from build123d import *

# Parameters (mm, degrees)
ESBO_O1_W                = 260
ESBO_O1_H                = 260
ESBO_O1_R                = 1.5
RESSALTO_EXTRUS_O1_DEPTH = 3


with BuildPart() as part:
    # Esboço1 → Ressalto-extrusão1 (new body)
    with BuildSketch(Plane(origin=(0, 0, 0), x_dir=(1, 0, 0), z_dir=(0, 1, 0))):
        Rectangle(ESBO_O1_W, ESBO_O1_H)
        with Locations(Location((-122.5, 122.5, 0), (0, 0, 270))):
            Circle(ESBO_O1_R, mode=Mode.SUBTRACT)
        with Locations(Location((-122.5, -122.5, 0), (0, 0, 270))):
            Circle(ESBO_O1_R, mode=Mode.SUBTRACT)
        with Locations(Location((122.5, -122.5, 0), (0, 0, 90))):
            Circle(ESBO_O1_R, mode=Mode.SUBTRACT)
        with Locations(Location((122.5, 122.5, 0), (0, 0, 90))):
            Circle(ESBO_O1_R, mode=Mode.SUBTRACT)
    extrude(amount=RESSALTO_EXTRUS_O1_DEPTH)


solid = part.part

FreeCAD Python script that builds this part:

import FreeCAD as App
import Part
import Sketcher

doc = App.newDocument("Part")
body = doc.addObject("PartDesign::Body", "Body")

# Sketch on XZ plane
sketch1 = body.newObject("Sketcher::SketchObject", "Sketch")
sketch1.AttachmentSupport = (doc.getObject("XZ_Plane"), [""])
sketch1.MapMode = "FlatFace"
sketch1.addGeometry(Part.LineSegment(App.Vector(-130, -130, 0), App.Vector(-130, 130, 0)), False)
sketch1.addGeometry(Part.LineSegment(App.Vector(-130, 130, 0), App.Vector(130, 130, 0)), False)
sketch1.addGeometry(Part.LineSegment(App.Vector(130, 130, 0), App.Vector(130, -130, 0)), False)
sketch1.addGeometry(Part.LineSegment(App.Vector(130, -130, 0), App.Vector(-130, -130, 0)), False)
sketch1.addGeometry(Part.Circle(App.Vector(-122.5, 122.5, 0), App.Vector(0, 0, 1), 1.5), False)
sketch1.addGeometry(Part.Circle(App.Vector(122.5, 122.5, 0), App.Vector(0, 0, 1), 1.5), False)
sketch1.addGeometry(Part.Circle(App.Vector(-122.5, -122.5, 0), App.Vector(0, 0, 1), 1.5), False)
sketch1.addGeometry(Part.Circle(App.Vector(122.5, -122.5, 0), App.Vector(0, 0, 1), 1.5), False)
sketch1.addConstraint(Sketcher.Constraint("Coincident", 0, 2, 1, 1))
sketch1.addConstraint(Sketcher.Constraint("Coincident", 1, 2, 2, 1))
sketch1.addConstraint(Sketcher.Constraint("Coincident", 2, 2, 3, 1))
sketch1.addConstraint(Sketcher.Constraint("Coincident", 3, 2, 0, 1))
sketch1.addConstraint(Sketcher.Constraint("Vertical", 0))
sketch1.addConstraint(Sketcher.Constraint("Horizontal", 1))
sketch1.addConstraint(Sketcher.Constraint("Vertical", 2))
sketch1.addConstraint(Sketcher.Constraint("Horizontal", 3))
sketch1.addConstraint(Sketcher.Constraint("Equal", 4, 5))
sketch1.addConstraint(Sketcher.Constraint("Equal", 5, 6))
sketch1.addConstraint(Sketcher.Constraint("Equal", 6, 7))
sketch1.addConstraint(Sketcher.Constraint("Symmetric", 5, 3, 6, 3, -1, 1))
sketch1.addConstraint(Sketcher.Constraint("Symmetric", 4, 3, 7, 3, -1, 1))
sketch1.addConstraint(Sketcher.Constraint("Symmetric", 0, 2, 2, 2, -1, 1))
sketch1.addConstraint(Sketcher.Constraint("Symmetric", 4, 3, 5, 3, -2))
sketch1.addConstraint(Sketcher.Constraint("Equal", 3, 0))
sketch1.addConstraint(Sketcher.Constraint("Diameter", 4, 3.0))
sketch1.addConstraint(Sketcher.Constraint("DistanceX", 1, 1, 1, 2, 260.0))
sketch1.addConstraint(Sketcher.Constraint("DistanceX", 4, 3, 5, 3, 245.0))
sketch1.addConstraint(Sketcher.Constraint("DistanceY", 6, 3, 4, 3, 245.0))
pad1 = body.newObject("PartDesign::Pad", "Pad")
pad1.Profile = sketch1
pad1.Length = 3
pad1.Reversed = True

doc.recompute()
